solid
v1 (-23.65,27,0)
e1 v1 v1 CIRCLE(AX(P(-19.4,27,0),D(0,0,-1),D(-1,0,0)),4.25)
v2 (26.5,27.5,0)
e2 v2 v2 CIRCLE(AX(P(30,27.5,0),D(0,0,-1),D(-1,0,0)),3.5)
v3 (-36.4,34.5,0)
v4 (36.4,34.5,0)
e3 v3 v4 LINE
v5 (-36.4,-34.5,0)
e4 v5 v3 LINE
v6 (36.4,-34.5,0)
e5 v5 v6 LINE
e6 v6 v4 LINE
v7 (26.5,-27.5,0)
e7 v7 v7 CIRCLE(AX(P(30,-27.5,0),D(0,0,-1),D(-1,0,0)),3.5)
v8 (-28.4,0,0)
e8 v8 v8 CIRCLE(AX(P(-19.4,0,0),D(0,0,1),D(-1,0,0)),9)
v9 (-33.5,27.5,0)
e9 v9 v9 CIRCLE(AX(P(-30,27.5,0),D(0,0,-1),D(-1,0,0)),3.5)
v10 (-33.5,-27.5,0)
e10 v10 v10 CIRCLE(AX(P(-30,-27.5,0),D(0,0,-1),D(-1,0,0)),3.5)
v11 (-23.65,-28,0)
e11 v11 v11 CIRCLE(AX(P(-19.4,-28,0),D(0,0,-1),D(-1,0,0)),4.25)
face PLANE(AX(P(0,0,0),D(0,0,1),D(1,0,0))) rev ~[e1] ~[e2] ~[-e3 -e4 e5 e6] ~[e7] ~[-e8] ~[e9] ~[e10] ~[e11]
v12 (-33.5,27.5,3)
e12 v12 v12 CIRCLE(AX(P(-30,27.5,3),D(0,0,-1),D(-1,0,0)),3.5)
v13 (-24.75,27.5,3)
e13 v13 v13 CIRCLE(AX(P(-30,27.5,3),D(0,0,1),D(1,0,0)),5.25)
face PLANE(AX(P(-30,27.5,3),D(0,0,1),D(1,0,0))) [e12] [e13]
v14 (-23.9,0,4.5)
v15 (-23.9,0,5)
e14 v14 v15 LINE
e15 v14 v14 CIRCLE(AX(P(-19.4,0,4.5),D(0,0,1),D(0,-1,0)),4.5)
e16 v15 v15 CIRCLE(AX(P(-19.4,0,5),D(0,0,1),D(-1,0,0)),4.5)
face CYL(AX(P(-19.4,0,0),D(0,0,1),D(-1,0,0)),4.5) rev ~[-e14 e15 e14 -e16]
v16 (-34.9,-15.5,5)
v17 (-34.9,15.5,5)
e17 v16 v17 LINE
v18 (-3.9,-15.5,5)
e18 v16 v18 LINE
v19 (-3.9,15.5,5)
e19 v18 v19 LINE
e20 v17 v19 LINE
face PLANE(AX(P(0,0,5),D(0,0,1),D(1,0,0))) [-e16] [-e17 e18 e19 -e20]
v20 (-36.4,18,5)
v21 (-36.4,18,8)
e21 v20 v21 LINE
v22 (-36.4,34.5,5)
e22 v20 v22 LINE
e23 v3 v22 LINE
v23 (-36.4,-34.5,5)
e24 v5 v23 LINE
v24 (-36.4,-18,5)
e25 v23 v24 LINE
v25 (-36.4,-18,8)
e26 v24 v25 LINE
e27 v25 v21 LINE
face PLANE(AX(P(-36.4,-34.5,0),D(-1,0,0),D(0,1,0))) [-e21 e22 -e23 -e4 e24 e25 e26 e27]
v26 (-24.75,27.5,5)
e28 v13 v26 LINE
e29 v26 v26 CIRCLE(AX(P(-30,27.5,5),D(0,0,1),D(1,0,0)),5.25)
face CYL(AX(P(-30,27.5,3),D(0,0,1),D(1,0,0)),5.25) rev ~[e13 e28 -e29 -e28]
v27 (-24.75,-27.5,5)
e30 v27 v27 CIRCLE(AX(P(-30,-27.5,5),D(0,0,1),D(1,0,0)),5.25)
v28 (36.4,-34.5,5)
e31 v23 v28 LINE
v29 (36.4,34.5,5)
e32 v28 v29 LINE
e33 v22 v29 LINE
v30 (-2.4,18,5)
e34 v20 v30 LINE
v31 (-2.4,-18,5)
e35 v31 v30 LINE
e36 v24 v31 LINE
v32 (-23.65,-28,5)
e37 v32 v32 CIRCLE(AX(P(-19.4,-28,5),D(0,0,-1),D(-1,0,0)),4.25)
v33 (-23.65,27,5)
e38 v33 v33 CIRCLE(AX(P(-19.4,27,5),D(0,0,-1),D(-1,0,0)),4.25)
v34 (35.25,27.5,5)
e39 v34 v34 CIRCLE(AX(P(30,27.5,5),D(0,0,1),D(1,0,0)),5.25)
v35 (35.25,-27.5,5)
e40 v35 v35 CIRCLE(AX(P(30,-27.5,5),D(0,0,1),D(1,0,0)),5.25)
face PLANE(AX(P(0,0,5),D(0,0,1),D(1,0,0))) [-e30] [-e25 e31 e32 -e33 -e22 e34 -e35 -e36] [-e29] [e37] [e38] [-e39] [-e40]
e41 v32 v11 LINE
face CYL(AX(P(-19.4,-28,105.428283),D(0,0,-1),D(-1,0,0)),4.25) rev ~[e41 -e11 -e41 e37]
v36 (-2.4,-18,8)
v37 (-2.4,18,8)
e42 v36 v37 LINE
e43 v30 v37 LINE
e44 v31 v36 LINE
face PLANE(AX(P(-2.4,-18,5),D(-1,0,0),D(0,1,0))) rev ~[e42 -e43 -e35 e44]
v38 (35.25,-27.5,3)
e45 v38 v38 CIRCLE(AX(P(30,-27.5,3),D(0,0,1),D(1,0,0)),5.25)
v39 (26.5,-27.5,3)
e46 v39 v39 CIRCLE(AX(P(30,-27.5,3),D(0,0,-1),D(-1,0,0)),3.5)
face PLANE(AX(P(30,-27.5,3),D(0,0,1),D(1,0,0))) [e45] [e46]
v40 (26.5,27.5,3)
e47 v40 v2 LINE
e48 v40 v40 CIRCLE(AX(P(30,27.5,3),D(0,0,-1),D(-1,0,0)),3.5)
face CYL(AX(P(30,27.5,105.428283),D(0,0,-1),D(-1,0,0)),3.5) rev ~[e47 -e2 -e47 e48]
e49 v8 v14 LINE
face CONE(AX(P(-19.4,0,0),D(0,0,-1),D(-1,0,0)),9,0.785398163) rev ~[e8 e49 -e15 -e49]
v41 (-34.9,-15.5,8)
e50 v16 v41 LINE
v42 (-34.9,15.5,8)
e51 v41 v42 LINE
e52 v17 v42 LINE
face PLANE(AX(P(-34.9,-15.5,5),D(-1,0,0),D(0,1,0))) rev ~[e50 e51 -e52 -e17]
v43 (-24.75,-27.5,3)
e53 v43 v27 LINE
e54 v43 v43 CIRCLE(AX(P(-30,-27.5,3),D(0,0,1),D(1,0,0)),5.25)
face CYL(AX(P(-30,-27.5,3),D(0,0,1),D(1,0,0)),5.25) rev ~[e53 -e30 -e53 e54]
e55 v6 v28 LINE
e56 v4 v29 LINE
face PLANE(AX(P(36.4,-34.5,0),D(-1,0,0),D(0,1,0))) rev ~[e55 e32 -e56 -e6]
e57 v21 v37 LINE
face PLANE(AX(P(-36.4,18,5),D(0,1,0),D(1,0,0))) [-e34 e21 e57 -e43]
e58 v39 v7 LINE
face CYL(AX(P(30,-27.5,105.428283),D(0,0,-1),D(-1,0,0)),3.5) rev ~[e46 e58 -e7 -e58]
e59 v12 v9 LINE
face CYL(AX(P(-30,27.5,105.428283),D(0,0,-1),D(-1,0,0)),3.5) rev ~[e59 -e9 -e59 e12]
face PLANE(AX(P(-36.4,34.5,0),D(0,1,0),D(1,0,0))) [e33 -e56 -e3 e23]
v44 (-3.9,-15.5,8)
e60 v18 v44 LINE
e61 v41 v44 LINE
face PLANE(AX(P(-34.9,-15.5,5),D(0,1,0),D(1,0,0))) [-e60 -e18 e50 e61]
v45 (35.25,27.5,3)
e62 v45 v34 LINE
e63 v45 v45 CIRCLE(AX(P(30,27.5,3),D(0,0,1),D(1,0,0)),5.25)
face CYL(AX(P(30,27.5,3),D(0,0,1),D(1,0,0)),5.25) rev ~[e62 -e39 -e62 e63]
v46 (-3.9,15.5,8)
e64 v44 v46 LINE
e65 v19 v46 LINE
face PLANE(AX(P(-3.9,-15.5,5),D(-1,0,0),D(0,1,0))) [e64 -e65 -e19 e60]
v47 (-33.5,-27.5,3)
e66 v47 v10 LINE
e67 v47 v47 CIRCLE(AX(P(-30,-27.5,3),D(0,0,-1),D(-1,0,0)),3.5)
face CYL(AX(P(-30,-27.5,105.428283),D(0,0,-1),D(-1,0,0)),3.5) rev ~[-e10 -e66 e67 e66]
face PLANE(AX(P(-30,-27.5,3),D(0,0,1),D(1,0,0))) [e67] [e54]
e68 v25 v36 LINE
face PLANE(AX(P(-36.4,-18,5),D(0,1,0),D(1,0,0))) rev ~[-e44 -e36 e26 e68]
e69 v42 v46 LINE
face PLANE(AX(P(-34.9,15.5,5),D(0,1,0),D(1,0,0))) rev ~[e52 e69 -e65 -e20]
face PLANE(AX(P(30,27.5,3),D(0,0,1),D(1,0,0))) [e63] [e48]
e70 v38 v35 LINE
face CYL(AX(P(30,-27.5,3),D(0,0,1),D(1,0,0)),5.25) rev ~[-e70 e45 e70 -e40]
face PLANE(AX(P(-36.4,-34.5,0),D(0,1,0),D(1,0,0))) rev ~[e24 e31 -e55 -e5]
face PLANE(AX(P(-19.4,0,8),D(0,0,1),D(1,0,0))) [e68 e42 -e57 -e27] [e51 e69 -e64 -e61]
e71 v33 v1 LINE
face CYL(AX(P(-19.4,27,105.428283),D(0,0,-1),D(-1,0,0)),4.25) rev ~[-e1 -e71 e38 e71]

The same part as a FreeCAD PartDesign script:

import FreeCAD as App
import Part
import Sketcher

V = App.Vector


def add_polygon(sketch, points):
    """Adds a closed chain of lines whose ends are joined by coincident constraints."""
    first, n = sketch.GeometryCount, len(points)
    for a, b in zip(points, points[1:] + points[:1]):
        sketch.addGeometry(Part.LineSegment(App.Vector(*a, 0), App.Vector(*b, 0)), False)
    for i in range(n):
        sketch.addConstraint(Sketcher.Constraint("Coincident", first + i, 2, first + (i + 1) % n, 1))

doc = App.newDocument("Part")
params = doc.addObject("Spreadsheet::Sheet", "Params")
for row, (alias, value) in enumerate([
    ("sketch1_height", "69 mm"),
    ("sketch1_width", "72.8 mm"),
    ("pad1_length", "5 mm"),
    ("sketch2_diameter", "7 mm"),
    ("hole_diameter", "7 mm"),
    ("sketch3_diameter", "8.5 mm"),
    ("hole2_diameter", "8.5 mm"),
    ("sketch4_width", "34 mm"),
    ("sketch4_width2", "31 mm"),
    ("sketch4_height", "36 mm"),
    ("pad2_length", "3 mm"),
    ("sketch5_diameter", "9 mm"),
    ("hole3_diameter", "9 mm"),
    ("hole3_csink_diameter", "18 mm"),
    ("sketch6_diameter", "7 mm"),
    ("hole4_diameter", "7 mm"),
    ("hole4_cbore_diameter", "10.5 mm"),
    ("hole4_cbore_depth", "2 mm"),
], start=1):
    params.set(f"A{row}", alias)
    params.set(f"B{row}", "=" + value)
    params.setAlias(f"B{row}", alias)

body = doc.addObject("PartDesign::Body", "Body")

sketch1 = body.newObject("Sketcher::SketchObject", "Sketch")
sketch1.AttachmentSupport = (doc.getObject("XY_Plane"), [""])
sketch1.MapMode = "FlatFace"
add_polygon(sketch1, [(-36.4, 34.5), (-36.4, -34.5), (36.4, -34.5), (36.4, 34.5)])
sketch1.addConstraint(Sketcher.Constraint("Vertical", 0))
sketch1.addConstraint(Sketcher.Constraint("Horizontal", 1))
sketch1.addConstraint(Sketcher.Constraint("Vertical", 2))
sketch1.addConstraint(Sketcher.Constraint("Horizontal", 3))
sketch1.addConstraint(Sketcher.Constraint("Symmetric", 0, 2, 2, 2, -1, 1))
sketch1.addConstraint(Sketcher.Constraint("DistanceY", 0, 2, 0, 1, 69.0))
sketch1.addConstraint(Sketcher.Constraint("DistanceX", 1, 1, 1, 2, 72.8))
sketch1.setExpression("Constraints[9]", "Params.sketch1_height")
sketch1.setExpression("Constraints[10]", "Params.sketch1_width")
pad1 = body.newObject("PartDesign::Pad", "Pad")
pad1.Profile = sketch1
pad1.setExpression("Length", "Params.pad1_length")

sketch2 = body.newObject("Sketcher::SketchObject", "Sketch001")
sketch2.AttachmentSupport = (doc.getObject("XY_Plane"), [""])
sketch2.MapMode = "FlatFace"
sketch2.AttachmentOffset = App.Placement(V(0, 0, 5), App.Rotation())
sketch2.addGeometry(Part.Circle(V(-30, 27.5, 0), V(0, 0, 1), 3.5), False)
sketch2.addGeometry(Part.Circle(V(30, 27.5, 0), V(0, 0, 1), 3.5), False)
sketch2.addGeometry(Part.Circle(V(30, -27.5, 0), V(0, 0, 1), 3.5), False)
sketch2.addGeometry(Part.Circle(V(-30, -27.5, 0), V(0, 0, 1), 3.5), False)
sketch2.addConstraint(Sketcher.Constraint("Equal", 0, 1))
sketch2.addConstraint(Sketcher.Constraint("Equal", 1, 2))
sketch2.addConstraint(Sketcher.Constraint("Equal", 2, 3))
sketch2.addConstraint(Sketcher.Constraint("Symmetric", 0, 3, 2, 3, -1, 1))
sketch2.addConstraint(Sketcher.Constraint("Symmetric", 1, 3, 3, 3, -1, 1))
sketch2.addConstraint(Sketcher.Constraint("Symmetric", 0, 3, 1, 3, -2))
sketch2.addConstraint(Sketcher.Constraint("Diameter", 0, 7.0))
sketch2.addConstraint(Sketcher.Constraint("DistanceX", 0, 3, -1, 1, 30.0))
sketch2.addConstraint(Sketcher.Constraint("DistanceY", 2, 3, 1, 3, 55.0))
sketch2.setExpression("Constraints[6]", "Params.sketch2_diameter")
doc.recompute()
hole = body.newObject("PartDesign::Hole", "Hole")
hole.Profile = sketch2
hole.ThreadType = "None"
hole.setExpression("Diameter", "Params.hole_diameter")
hole.DepthType = "ThroughAll"

sketch3 = body.newObject("Sketcher::SketchObject", "Sketch002")
sketch3.AttachmentSupport = (doc.getObject("XY_Plane"), [""])
sketch3.MapMode = "FlatFace"
sketch3.AttachmentOffset = App.Placement(V(0, 0, 5), App.Rotation())
sketch3.addGeometry(Part.Circle(V(-19.4, 27, 0), V(0, 0, 1), 4.25), False)
sketch3.addGeometry(Part.Circle(V(-19.4, -28, 0), V(0, 0, 1), 4.25), False)
sketch3.addConstraint(Sketcher.Constraint("Equal", 0, 1))
sketch3.addConstraint(Sketcher.Constraint("Vertical", 0, 3, 1, 3))
sketch3.addConstraint(Sketcher.Constraint("Diameter", 0, 8.5))
sketch3.addConstraint(Sketcher.Constraint("DistanceY", -1, 1, 0, 3, 27.0))
sketch3.addConstraint(Sketcher.Constraint("DistanceY", 1, 3, -1, 1, 28.0))
sketch3.addConstraint(Sketcher.Constraint("DistanceX", 0, 3, -1, 1, 19.4))
sketch3.setExpression("Constraints[2]", "Params.sketch3_diameter")
doc.recompute()
hole2 = body.newObject("PartDesign::Hole", "Hole001")
hole2.Profile = sketch3
hole2.ThreadType = "None"
hole2.setExpression("Diameter", "Params.hole2_diameter")
hole2.DepthType = "ThroughAll"

sketch4 = body.newObject("Sketcher::SketchObject", "Sketch003")
sketch4.AttachmentSupport = (doc.getObject("XY_Plane"), [""])
sketch4.MapMode = "FlatFace"
sketch4.AttachmentOffset = App.Placement(V(0, 0, 5), App.Rotation())
add_polygon(sketch4, [(-36.4, 18), (-36.4, -18), (-2.4, -18), (-2.4, 18)])
add_polygon(sketch4, [(-3.9, -15.5), (-34.9, -15.5), (-34.9, 15.5), (-3.9, 15.5)])
sketch4.addConstraint(Sketcher.Constraint("Vertical", 0))
sketch4.addConstraint(Sketcher.Constraint("Horizontal", 1))
sketch4.addConstraint(Sketcher.Constraint("Vertical", 2))
sketch4.addConstraint(Sketcher.Constraint("Horizontal", 3))
sketch4.addConstraint(Sketcher.Constraint("Horizontal", 4))
sketch4.addConstraint(Sketcher.Constraint("Vertical", 5))
sketch4.addConstraint(Sketcher.Constraint("Horizontal", 6))
sketch4.addConstraint(Sketcher.Constraint("Vertical", 7))
sketch4.addConstraint(Sketcher.Constraint("Equal", 6, 5))
sketch4.addConstraint(Sketcher.Constraint("DistanceX", 1, 1, 1, 2, 34.0))
sketch4.addConstraint(Sketcher.Constraint("DistanceX", 4, 2, 4, 1, 31.0))
sketch4.addConstraint(Sketcher.Constraint("DistanceY", 0, 2, 0, 1, 36.0))
sketch4.addConstraint(Sketcher.Constraint("DistanceY", 0, 2, -1, 1, 18.0))
sketch4.addConstraint(Sketcher.Constraint("DistanceX", 0, 2, -1, 1, 36.4))
sketch4.addConstraint(Sketcher.Constraint("DistanceX", 4, 2, -1, 1, 34.9))
sketch4.addConstraint(Sketcher.Constraint("DistanceY", 4, 2, -1, 1, 15.5))
sketch4.setExpression("Constraints[17]", "Params.sketch4_width")
sketch4.setExpression("Constraints[18]", "Params.sketch4_width2")
sketch4.setExpression("Constraints[19]", "Params.sketch4_height")
pad2 = body.newObject("PartDesign::Pad", "Pad001")
pad2.Profile = sketch4
pad2.setExpression("Length", "Params.pad2_length")

sketch5 = body.newObject("Sketcher::SketchObject", "Sketch004")
sketch5.AttachmentSupport = (doc.getObject("XY_Plane"), [""])
sketch5.MapMode = "FlatFace"
sketch5.addGeometry(Part.Circle(V(-19.4, 0, 0), V(0, 0, 1), 4.5), False)
sketch5.addConstraint(Sketcher.Constraint("PointOnObject", 0, 3, -1))
sketch5.addConstraint(Sketcher.Constraint("Diameter", 0, 9.0))
sketch5.addConstraint(Sketcher.Constraint("DistanceX", 0, 3, -1, 1, 19.4))
sketch5.setExpression("Constraints[1]", "Params.sketch5_diameter")
doc.recompute()
hole3 = body.newObject("PartDesign::Hole", "Hole002")
hole3.Profile = sketch5
hole3.ThreadType = "None"
hole3.setExpression("Diameter", "Params.hole3_diameter")
hole3.DepthType = "ThroughAll"
hole3.HoleCutType = "Countersink"
hole3.setExpression("HoleCutDiameter", "Params.hole3_csink_diameter")
hole3.HoleCutCountersinkAngle = 90
hole3.Reversed = True

sketch6 = body.newObject("Sketcher::SketchObject", "Sketch005")
sketch6.AttachmentSupport = (doc.getObject("XY_Plane"), [""])
sketch6.MapMode = "FlatFace"
sketch6.AttachmentOffset = App.Placement(V(0, 0, 5), App.Rotation())
sketch6.addGeometry(Part.Circle(V(-30, 27.5, 0), V(0, 0, 1), 3.5), False)
sketch6.addGeometry(Part.Circle(V(30, 27.5, 0), V(0, 0, 1), 3.5), False)
sketch6.addGeometry(Part.Circle(V(30, -27.5, 0), V(0, 0, 1), 3.5), False)
sketch6.addGeometry(Part.Circle(V(-30, -27.5, 0), V(0, 0, 1), 3.5), False)
sketch6.addConstraint(Sketcher.Constraint("Equal", 0, 1))
sketch6.addConstraint(Sketcher.Constraint("Equal", 1, 2))
sketch6.addConstraint(Sketcher.Constraint("Equal", 2, 3))
sketch6.addConstraint(Sketcher.Constraint("Symmetric", 0, 3, 2, 3, -1, 1))
sketch6.addConstraint(Sketcher.Constraint("Symmetric", 1, 3, 3, 3, -1, 1))
sketch6.addConstraint(Sketcher.Constraint("Symmetric", 0, 3, 1, 3, -2))
sketch6.addConstraint(Sketcher.Constraint("Diameter", 0, 7.0))
sketch6.addConstraint(Sketcher.Constraint("DistanceX", 0, 3, -1, 1, 30.0))
sketch6.addConstraint(Sketcher.Constraint("DistanceY", 2, 3, 1, 3, 55.0))
sketch6.setExpression("Constraints[6]", "Params.sketch6_diameter")
doc.recompute()
hole4 = body.newObject("PartDesign::Hole", "Hole003")
hole4.Profile = sketch6
hole4.ThreadType = "None"
hole4.setExpression("Diameter", "Params.hole4_diameter")
hole4.DepthType = "ThroughAll"
hole4.HoleCutType = "Counterbore"
hole4.setExpression("HoleCutDiameter", "Params.hole4_cbore_diameter")
hole4.setExpression("HoleCutDepth", "Params.hole4_cbore_depth")

doc.recompute()
